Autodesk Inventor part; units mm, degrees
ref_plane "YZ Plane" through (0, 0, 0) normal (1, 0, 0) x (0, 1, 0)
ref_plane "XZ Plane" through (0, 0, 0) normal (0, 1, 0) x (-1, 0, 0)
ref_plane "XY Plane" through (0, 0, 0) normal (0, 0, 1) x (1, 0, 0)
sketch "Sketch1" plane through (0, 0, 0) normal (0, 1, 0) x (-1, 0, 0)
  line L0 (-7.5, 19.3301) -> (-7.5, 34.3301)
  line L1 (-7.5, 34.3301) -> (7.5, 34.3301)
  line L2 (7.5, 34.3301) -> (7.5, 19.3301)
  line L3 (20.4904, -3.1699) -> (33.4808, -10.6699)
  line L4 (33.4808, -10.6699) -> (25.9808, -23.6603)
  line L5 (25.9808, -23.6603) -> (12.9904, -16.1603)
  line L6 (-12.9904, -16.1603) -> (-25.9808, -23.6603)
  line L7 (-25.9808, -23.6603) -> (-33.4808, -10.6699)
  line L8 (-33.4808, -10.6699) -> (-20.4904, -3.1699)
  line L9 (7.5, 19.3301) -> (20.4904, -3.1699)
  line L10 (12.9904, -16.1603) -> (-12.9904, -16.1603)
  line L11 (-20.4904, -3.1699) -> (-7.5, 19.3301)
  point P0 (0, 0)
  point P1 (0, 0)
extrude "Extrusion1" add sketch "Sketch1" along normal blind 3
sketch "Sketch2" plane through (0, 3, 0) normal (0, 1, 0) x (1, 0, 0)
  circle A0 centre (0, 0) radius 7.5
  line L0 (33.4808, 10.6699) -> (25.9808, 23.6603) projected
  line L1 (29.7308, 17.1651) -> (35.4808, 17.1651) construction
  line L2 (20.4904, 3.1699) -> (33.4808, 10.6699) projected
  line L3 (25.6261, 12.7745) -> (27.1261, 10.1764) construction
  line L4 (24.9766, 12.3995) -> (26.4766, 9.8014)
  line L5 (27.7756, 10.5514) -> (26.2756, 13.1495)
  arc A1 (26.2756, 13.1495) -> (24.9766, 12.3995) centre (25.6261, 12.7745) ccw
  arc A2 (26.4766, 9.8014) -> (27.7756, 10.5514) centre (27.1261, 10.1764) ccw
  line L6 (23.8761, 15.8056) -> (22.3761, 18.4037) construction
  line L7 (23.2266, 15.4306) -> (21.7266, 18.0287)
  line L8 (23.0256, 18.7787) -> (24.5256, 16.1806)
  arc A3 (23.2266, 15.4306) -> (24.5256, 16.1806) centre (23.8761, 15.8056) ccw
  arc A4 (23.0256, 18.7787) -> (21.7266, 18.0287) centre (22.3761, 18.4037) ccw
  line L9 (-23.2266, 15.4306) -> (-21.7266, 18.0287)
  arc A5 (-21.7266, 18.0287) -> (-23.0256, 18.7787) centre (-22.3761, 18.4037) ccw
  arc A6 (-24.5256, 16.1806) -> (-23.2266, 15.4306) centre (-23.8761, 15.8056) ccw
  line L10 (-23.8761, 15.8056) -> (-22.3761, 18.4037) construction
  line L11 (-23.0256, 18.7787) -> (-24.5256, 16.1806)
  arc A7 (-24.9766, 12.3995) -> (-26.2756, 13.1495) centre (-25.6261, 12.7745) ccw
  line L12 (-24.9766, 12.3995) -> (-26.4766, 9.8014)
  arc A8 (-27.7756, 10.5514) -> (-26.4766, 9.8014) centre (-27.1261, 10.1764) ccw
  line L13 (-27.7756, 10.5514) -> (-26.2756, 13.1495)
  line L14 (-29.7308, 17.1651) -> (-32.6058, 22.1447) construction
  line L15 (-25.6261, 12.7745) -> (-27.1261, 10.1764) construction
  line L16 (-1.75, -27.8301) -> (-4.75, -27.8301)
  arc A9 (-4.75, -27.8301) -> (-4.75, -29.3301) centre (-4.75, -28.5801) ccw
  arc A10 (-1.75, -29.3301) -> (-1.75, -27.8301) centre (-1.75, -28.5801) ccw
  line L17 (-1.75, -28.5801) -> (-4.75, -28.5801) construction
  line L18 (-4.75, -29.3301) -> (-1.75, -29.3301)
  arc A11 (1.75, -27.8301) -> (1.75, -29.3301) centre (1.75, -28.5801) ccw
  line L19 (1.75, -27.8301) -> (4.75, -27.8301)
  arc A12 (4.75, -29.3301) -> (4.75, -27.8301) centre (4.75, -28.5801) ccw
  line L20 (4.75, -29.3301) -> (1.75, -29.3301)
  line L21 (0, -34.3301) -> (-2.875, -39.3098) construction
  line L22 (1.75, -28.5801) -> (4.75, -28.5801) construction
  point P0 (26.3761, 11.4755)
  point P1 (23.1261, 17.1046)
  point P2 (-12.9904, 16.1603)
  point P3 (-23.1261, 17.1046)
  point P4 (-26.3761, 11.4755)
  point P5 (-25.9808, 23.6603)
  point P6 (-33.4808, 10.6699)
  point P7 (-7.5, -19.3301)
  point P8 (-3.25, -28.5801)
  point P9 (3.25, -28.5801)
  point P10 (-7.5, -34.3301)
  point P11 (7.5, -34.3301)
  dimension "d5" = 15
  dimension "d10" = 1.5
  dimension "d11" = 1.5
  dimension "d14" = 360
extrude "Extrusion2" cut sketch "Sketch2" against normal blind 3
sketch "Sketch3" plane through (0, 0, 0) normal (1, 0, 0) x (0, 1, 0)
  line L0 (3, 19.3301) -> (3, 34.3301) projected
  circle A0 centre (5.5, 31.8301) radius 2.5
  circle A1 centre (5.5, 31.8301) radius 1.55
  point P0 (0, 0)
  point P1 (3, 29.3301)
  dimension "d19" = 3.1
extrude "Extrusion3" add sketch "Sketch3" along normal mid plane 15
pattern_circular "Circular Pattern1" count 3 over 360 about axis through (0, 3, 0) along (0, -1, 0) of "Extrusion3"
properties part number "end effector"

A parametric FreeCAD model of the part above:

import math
import FreeCAD as App
import Part
import Sketcher

V = App.Vector
Q = App.Units.Quantity

doc = App.newDocument("Part")
body = doc.addObject("PartDesign::Body", "Body")
body.AllowCompound = True

sketch1 = body.newObject("Sketcher::SketchObject", "Sketch")
sketch1.AttachmentSupport = (doc.getObject("XZ_Plane"), [""])
sketch1.MapMode = "FlatFace"
sketch1.addGeometry([
    Part.LineSegment(V(8, 34, 0), V(8, 19, 0)),
    Part.LineSegment(V(8, 19, 0), V(20, -3, 0)),
    Part.LineSegment(V(20, -3, 0), V(33, -11, 0)),
    Part.LineSegment(V(33, -11, 0), V(26, -24, 0)),
    Part.LineSegment(V(26, -24, 0), V(13, -16, 0)),
    Part.LineSegment(V(13, -16, 0), V(-13, -16, 0)),
    Part.LineSegment(V(-13, -16, 0), V(-26, -24, 0)),
    Part.LineSegment(V(-26, -24, 0), V(-33, -11, 0)),
    Part.LineSegment(V(-33, -11, 0), V(-20, -3, 0)),
    Part.LineSegment(V(-20, -3, 0), V(-8, 19, 0)),
    Part.LineSegment(V(-8, 19, 0), V(-8, 34, 0)),
    Part.LineSegment(V(-8, 34, 0), V(8, 34, 0)),
], False)
sketch1.addConstraint([
    Sketcher.Constraint("Coincident", 0, 2, 1, 1),
    Sketcher.Constraint("Coincident", 1, 2, 2, 1),
    Sketcher.Constraint("Coincident", 2, 2, 3, 1),
    Sketcher.Constraint("Coincident", 3, 2, 4, 1),
    Sketcher.Constraint("Coincident", 4, 2, 5, 1),
    Sketcher.Constraint("Coincident", 5, 2, 6, 1),
    Sketcher.Constraint("Coincident", 6, 2, 7, 1),
    Sketcher.Constraint("Coincident", 7, 2, 8, 1),
    Sketcher.Constraint("Coincident", 8, 2, 9, 1),
    Sketcher.Constraint("Coincident", 9, 2, 10, 1),
    Sketcher.Constraint("Coincident", 10, 2, 11, 1),
    Sketcher.Constraint("Coincident", 11, 2, 0, 1),
    Sketcher.Constraint("Vertical", 0),
    Sketcher.Constraint("Horizontal", 5),
    Sketcher.Constraint("Vertical", 10),
    Sketcher.Constraint("Horizontal", 11),
    Sketcher.Constraint("Symmetric", 3, 2, 6, 2, -2),
    Sketcher.Constraint("Symmetric", 2, 2, 7, 2, -2),
    Sketcher.Constraint("Symmetric", 1, 2, 8, 2, -2),
    Sketcher.Constraint("Symmetric", 0, 2, 9, 2, -2),
    Sketcher.Constraint("Perpendicular", 2, 3),
    Sketcher.Constraint("Perpendicular", 3, 4),
    Sketcher.Constraint("Perpendicular", 1, 6),
    Sketcher.Constraint("Perpendicular", 6, 7),
    Sketcher.Constraint("Equal", 11, 0),
    Sketcher.Constraint("Equal", 2, 3),
    Sketcher.Constraint("Equal", 3, 4),
    Sketcher.Constraint("DistanceX", 11, 1, 11, 2, 15.0),
    Sketcher.Constraint("Angle", 1, Q("-60 deg")),
    Sketcher.Constraint("Distance", 2, 15.0),
    Sketcher.Constraint("DistanceY", 2, 2, 0, 2, 30.0),
    Sketcher.Constraint("DistanceY", -1, 1, 0, 2, 19.33),
])
pad1 = body.newObject("PartDesign::Pad", "Pad")
pad1.Profile = sketch1
pad1.Length = 3
pad1.Reversed = True

sketch2 = body.newObject("Sketcher::SketchObject", "Sketch001")
sketch2.AttachmentSupport = (doc.getObject("XZ_Plane"), [""])
sketch2.MapMode = "FlatFace"
sketch2.AttachmentOffset = App.Placement(V(0, 0, -3), App.Rotation())
sketch2.addGeometry([
    Part.Circle(V(0, 0, 0), V(0, 0, 1), 7.5),
    Part.ArcOfCircle(Part.Circle(V(25.6, -12.8, 0), V(0, 0, 1), 0.7), math.radians(150), math.radians(330)),
    Part.LineSegment(V(25, -12.4, 0), V(26.5, -9.8, 0)),
    Part.ArcOfCircle(Part.Circle(V(27.1, -10.2, 0), V(0, 0, 1), 0.7), math.radians(-30), math.radians(150)),
    Part.LineSegment(V(27.8, -10.6, 0), V(26.3, -13.1, 0)),
    Part.LineSegment(V(21.7, -18, 0), V(23.2, -15.4, 0)),
    Part.ArcOfCircle(Part.Circle(V(23.9, -15.8, 0), V(0, 0, 1), 0.7), math.radians(-30), math.radians(150)),
    Part.LineSegment(V(24.5, -16.2, 0), V(23, -18.8, 0)),
    Part.ArcOfCircle(Part.Circle(V(22.4, -18.4, 0), V(0, 0, 1), 0.7), math.radians(150), math.radians(330)),
    Part.ArcOfCircle(Part.Circle(V(-23.9, -15.8, 0), V(0, 0, 1), 0.7), math.radians(30), math.radians(210)),
    Part.LineSegment(V(-23.2, -15.4, 0), V(-21.7, -18, 0)),
    Part.ArcOfCircle(Part.Circle(V(-22.4, -18.4, 0), V(0, 0, 1), 0.7), math.radians(-150), math.radians(30)),
    Part.LineSegment(V(-23, -18.8, 0), V(-24.5, -16.2, 0)),
    Part.LineSegment(V(-26.5, -9.8, 0), V(-25, -12.4, 0)),
    Part.ArcOfCircle(Part.Circle(V(-25.6, -12.8, 0), V(0, 0, 1), 0.7), math.radians(-150), math.radians(30)),
    Part.LineSegment(V(-26.3, -13.1, 0), V(-27.8, -10.6, 0)),
    Part.ArcOfCircle(Part.Circle(V(-27.1, -10.2, 0), V(0, 0, 1), 0.7), math.radians(30), math.radians(210)),
    Part.ArcOfCircle(Part.Circle(V(-1.8, 28.6, 0), V(0, 0, 1), 0.8), math.radians(-90), math.radians(90)),
    Part.LineSegment(V(-1.8, 27.8, 0), V(-4.8, 27.8, 0)),
    Part.ArcOfCircle(Part.Circle(V(-4.8, 28.6, 0), V(0, 0, 1), 0.8), math.radians(90), math.radians(270)),
    Part.LineSegment(V(-4.8, 29.3, 0), V(-1.8, 29.3, 0)),
    Part.LineSegment(V(4.8, 27.8, 0), V(1.8, 27.8, 0)),
    Part.ArcOfCircle(Part.Circle(V(1.8, 28.6, 0), V(0, 0, 1), 0.8), math.radians(90), math.radians(270)),
    Part.LineSegment(V(1.8, 29.3, 0), V(4.8, 29.3, 0)),
    Part.ArcOfCircle(Part.Circle(V(4.8, 28.6, 0), V(0, 0, 1), 0.8), math.radians(-90), math.radians(90)),
], False)
sketch2.addConstraint([
    Sketcher.Constraint("Tangent", 1, 1, 2, 1),
    Sketcher.Constraint("Tangent", 2, 2, 3, 2),
    Sketcher.Constraint("Tangent", 3, 1, 4, 1),
    Sketcher.Constraint("Tangent", 4, 2, 1, 2),
    Sketcher.Constraint("Tangent", 5, 2, 6, 2),
    Sketcher.Constraint("Tangent", 6, 1, 7, 1),
    Sketcher.Constraint("Tangent", 7, 2, 8, 2),
    Sketcher.Constraint("Tangent", 8, 1, 5, 1),
    Sketcher.Constraint("Tangent", 9, 1, 10, 1),
    Sketcher.Constraint("Tangent", 10, 2, 11, 2),
    Sketcher.Constraint("Tangent", 11, 1, 12, 1),
    Sketcher.Constraint("Tangent", 12, 2, 9, 2),
    Sketcher.Constraint("Tangent", 13, 2, 14, 2),
    Sketcher.Constraint("Tangent", 14, 1, 15, 1),
    Sketcher.Constraint("Tangent", 15, 2, 16, 2),
    Sketcher.Constraint("Tangent", 16, 1, 13, 1),
    Sketcher.Constraint("Tangent", 17, 1, 18, 1),
    Sketcher.Constraint("Tangent", 18, 2, 19, 2),
    Sketcher.Constraint("Tangent", 19, 1, 20, 1),
    Sketcher.Constraint("Tangent", 20, 2, 17, 2),
    Sketcher.Constraint("Tangent", 21, 2, 22, 2),
    Sketcher.Constraint("Tangent", 22, 1, 23, 1),
    Sketcher.Constraint("Tangent", 23, 2, 24, 2),
    Sketcher.Constraint("Tangent", 24, 1, 21, 1),
    Sketcher.Constraint("Horizontal", 18),
    Sketcher.Constraint("Horizontal", 20),
    Sketcher.Constraint("Horizontal", 21),
    Sketcher.Constraint("Horizontal", 23),
    Sketcher.Constraint("Coincident", 0, 3, -1, 1),
    Sketcher.Constraint("Equal", 1, 3),
    Sketcher.Constraint("Equal", 3, 6),
    Sketcher.Constraint("Equal", 6, 8),
    Sketcher.Constraint("Equal", 8, 9),
    Sketcher.Constraint("Equal", 9, 11),
    Sketcher.Constraint("Equal", 11, 14),
    Sketcher.Constraint("Equal", 14, 16),
    Sketcher.Constraint("Equal", 16, 17),
    Sketcher.Constraint("Equal", 19, 22),
    Sketcher.Constraint("Symmetric", 6, 3, 9, 3, -2),
    Sketcher.Constraint("Symmetric", 8, 3, 11, 3, -2),
    Sketcher.Constraint("Symmetric", 1, 3, 14, 3, -2),
    Sketcher.Constraint("Symmetric", 3, 3, 16, 3, -2),
    Sketcher.Constraint("Symmetric", 17, 3, 22, 3, -2),
    Sketcher.Constraint("Parallel", 4, 5),
    Sketcher.Constraint("Equal", 20, 21),
    Sketcher.Constraint("Equal", 4, 5),
    Sketcher.Constraint("Diameter", 0, 15.0),
    Sketcher.Constraint("Radius", 1, 0.75),
    Sketcher.Constraint("DistanceX", 1, 3, 3, 3, 1.5),
    Sketcher.Constraint("DistanceX", 18, 2, 18, 1, 3.0),
    Sketcher.Constraint("Angle", 2, Q("60.0002 deg")),
    Sketcher.Constraint("DistanceX", 17, 3, 22, 3, 3.5),
    Sketcher.Constraint("DistanceY", -1, 1, 17, 3, 28.58),
    Sketcher.Constraint("DistanceX", 6, 3, 1, 3, 1.75),
    Sketcher.Constraint("DistanceX", -1, 1, 1, 3, 25.626),
    Sketcher.Constraint("DistanceY", 6, 3, 1, 3, 3.031),
    Sketcher.Constraint("DistanceY", 1, 3, -1, 1, 12.7745),
])
pocket1 = body.newObject("PartDesign::Pocket", "Pocket")
pocket1.Profile = sketch2
pocket1.Length = 3
pocket1.Reversed = True

sketch3 = body.newObject("Sketcher::SketchObject", "Sketch002")
sketch3.AttachmentSupport = (doc.getObject("YZ_Plane"), [""])
sketch3.MapMode = "FlatFace"
sketch3.addGeometry([
    Part.Circle(V(5.5, 31.8, 0), V(0, 0, 1), 2.5),
    Part.Circle(V(5.5, 31.8, 0), V(0, 0, 1), 1.6),
], False)
sketch3.addConstraint([
    Sketcher.Constraint("Coincident", 1, 3, 0, 3),
    Sketcher.Constraint("Diameter", 1, 3.1),
    Sketcher.Constraint("Diameter", 0, 5.0),
    Sketcher.Constraint("DistanceX", -1, 1, 0, 3, 5.5),
    Sketcher.Constraint("DistanceY", -1, 1, 0, 3, 31.83),
])
pad2 = body.newObject("PartDesign::Pad", "Pad001")
pad2.Profile = sketch3
pad2.Length = 15
pad2.Midplane = True
doc.recompute()

polarpattern = body.newObject("PartDesign::PolarPattern", "PolarPattern")
polarpattern.Originals = [pad2]
polarpattern.Axis = (doc.getObject("Y_Axis"), [""])
polarpattern.Angle = 360
polarpattern.Occurrences = 3
body.Tip = polarpattern

doc.recompute()
